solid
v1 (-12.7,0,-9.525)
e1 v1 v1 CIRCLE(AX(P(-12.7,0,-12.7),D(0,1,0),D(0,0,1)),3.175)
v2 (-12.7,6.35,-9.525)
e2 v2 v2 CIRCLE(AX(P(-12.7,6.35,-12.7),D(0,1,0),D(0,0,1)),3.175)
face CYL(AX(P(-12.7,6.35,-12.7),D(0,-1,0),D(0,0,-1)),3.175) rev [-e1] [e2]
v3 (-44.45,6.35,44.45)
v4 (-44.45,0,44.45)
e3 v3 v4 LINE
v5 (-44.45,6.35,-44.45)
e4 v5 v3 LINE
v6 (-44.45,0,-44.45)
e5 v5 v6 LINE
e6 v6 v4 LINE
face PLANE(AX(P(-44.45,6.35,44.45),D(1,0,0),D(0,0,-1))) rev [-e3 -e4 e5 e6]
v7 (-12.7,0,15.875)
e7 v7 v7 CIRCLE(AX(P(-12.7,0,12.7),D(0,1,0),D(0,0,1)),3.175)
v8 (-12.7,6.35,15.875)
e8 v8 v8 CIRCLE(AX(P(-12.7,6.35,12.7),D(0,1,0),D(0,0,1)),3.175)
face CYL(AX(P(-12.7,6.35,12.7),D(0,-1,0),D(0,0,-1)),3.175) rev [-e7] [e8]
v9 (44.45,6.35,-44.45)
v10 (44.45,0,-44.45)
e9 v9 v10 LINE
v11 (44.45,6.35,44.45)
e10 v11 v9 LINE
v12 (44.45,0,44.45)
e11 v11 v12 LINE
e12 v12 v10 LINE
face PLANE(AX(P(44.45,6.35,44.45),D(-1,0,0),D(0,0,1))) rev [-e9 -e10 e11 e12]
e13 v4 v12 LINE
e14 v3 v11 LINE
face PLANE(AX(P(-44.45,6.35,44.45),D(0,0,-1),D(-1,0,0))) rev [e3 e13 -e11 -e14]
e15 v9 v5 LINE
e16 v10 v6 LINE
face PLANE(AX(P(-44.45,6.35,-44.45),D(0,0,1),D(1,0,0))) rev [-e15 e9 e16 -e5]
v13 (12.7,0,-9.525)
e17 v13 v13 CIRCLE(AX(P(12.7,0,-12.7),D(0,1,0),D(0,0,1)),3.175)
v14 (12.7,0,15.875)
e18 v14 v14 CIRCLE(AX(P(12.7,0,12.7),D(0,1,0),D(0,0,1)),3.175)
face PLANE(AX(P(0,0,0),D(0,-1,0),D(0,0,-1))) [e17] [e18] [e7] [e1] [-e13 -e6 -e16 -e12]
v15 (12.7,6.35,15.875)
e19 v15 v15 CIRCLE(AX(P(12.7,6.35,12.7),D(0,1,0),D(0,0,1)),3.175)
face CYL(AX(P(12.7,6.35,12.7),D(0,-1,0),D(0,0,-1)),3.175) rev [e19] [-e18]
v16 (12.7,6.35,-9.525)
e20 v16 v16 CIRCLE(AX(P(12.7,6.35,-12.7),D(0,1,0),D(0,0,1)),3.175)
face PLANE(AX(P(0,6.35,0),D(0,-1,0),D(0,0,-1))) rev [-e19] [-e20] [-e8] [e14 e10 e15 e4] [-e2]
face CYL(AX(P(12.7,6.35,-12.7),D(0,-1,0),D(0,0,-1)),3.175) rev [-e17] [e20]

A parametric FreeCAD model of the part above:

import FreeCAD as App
import Part
import Sketcher

V = App.Vector
Q = App.Units.Quantity

doc = App.newDocument("Part")
params = doc.addObject("Spreadsheet::Sheet", "Params")
for row, (alias, value) in enumerate([
    ("sketch1_diameter", "0.25 in"),
    ("sketch1_width", "3.5 in"),
    ("pad1_length", "0.25 in"),
], start=1):
    params.set(f"A{row}", alias)
    params.set(f"B{row}", "=" + value)
    params.setAlias(f"B{row}", alias)

body = doc.addObject("PartDesign::Body", "Body")

sketch1 = body.newObject("Sketcher::SketchObject", "Sketch")
sketch1.AttachmentSupport = (doc.getObject("XZ_Plane"), [""])
sketch1.MapMode = "FlatFace"
sketch1.addGeometry([
    Part.LineSegment(V(-44.45, -44.45, 0), V(-44.45, 44.45, 0)),
    Part.LineSegment(V(-44.45, 44.45, 0), V(44.45, 44.45, 0)),
    Part.LineSegment(V(44.45, 44.45, 0), V(44.45, -44.45, 0)),
    Part.LineSegment(V(44.45, -44.45, 0), V(-44.45, -44.45, 0)),
    Part.Circle(V(-12.7, 12.7, 0), V(0, 0, 1), 3.175),
    Part.Circle(V(12.7, 12.7, 0), V(0, 0, 1), 3.175),
    Part.Circle(V(-12.7, -12.7, 0), V(0, 0, 1), 3.175),
    Part.Circle(V(12.7, -12.7, 0), V(0, 0, 1), 3.175),
], False)
sketch1.addConstraint([
    Sketcher.Constraint("Coincident", 0, 2, 1, 1),
    Sketcher.Constraint("Coincident", 1, 2, 2, 1),
    Sketcher.Constraint("Coincident", 2, 2, 3, 1),
    Sketcher.Constraint("Coincident", 3, 2, 0, 1),
    Sketcher.Constraint("Vertical", 0),
    Sketcher.Constraint("Horizontal", 1),
    Sketcher.Constraint("Vertical", 2),
    Sketcher.Constraint("Horizontal", 3),
    Sketcher.Constraint("Equal", 4, 5),
    Sketcher.Constraint("Equal", 5, 6),
    Sketcher.Constraint("Equal", 6, 7),
    Sketcher.Constraint("Symmetric", 5, 3, 6, 3, -1, 1),
    Sketcher.Constraint("Symmetric", 4, 3, 7, 3, -1, 1),
    Sketcher.Constraint("Symmetric", 0, 2, 2, 2, -1, 1),
    Sketcher.Constraint("Symmetric", 4, 3, 5, 3, -2),
    Sketcher.Constraint("Equal", 3, 0),
    Sketcher.Constraint("Diameter", 4, Q("0.25 in")),
    Sketcher.Constraint("DistanceX", 1, 1, 1, 2, Q("3.5 in")),
    Sketcher.Constraint("DistanceX", 4, 3, 5, 3, Q("1 in")),
    Sketcher.Constraint("DistanceY", 6, 3, 4, 3, Q("1 in")),
])
sketch1.setExpression("Constraints[16]", "Params.sketch1_diameter")
sketch1.setExpression("Constraints[17]", "Params.sketch1_width")
pad1 = body.newObject("PartDesign::Pad", "Pad")
pad1.Profile = sketch1
pad1.setExpression("Length", "Params.pad1_length")
pad1.Reversed = True

doc.recompute()
